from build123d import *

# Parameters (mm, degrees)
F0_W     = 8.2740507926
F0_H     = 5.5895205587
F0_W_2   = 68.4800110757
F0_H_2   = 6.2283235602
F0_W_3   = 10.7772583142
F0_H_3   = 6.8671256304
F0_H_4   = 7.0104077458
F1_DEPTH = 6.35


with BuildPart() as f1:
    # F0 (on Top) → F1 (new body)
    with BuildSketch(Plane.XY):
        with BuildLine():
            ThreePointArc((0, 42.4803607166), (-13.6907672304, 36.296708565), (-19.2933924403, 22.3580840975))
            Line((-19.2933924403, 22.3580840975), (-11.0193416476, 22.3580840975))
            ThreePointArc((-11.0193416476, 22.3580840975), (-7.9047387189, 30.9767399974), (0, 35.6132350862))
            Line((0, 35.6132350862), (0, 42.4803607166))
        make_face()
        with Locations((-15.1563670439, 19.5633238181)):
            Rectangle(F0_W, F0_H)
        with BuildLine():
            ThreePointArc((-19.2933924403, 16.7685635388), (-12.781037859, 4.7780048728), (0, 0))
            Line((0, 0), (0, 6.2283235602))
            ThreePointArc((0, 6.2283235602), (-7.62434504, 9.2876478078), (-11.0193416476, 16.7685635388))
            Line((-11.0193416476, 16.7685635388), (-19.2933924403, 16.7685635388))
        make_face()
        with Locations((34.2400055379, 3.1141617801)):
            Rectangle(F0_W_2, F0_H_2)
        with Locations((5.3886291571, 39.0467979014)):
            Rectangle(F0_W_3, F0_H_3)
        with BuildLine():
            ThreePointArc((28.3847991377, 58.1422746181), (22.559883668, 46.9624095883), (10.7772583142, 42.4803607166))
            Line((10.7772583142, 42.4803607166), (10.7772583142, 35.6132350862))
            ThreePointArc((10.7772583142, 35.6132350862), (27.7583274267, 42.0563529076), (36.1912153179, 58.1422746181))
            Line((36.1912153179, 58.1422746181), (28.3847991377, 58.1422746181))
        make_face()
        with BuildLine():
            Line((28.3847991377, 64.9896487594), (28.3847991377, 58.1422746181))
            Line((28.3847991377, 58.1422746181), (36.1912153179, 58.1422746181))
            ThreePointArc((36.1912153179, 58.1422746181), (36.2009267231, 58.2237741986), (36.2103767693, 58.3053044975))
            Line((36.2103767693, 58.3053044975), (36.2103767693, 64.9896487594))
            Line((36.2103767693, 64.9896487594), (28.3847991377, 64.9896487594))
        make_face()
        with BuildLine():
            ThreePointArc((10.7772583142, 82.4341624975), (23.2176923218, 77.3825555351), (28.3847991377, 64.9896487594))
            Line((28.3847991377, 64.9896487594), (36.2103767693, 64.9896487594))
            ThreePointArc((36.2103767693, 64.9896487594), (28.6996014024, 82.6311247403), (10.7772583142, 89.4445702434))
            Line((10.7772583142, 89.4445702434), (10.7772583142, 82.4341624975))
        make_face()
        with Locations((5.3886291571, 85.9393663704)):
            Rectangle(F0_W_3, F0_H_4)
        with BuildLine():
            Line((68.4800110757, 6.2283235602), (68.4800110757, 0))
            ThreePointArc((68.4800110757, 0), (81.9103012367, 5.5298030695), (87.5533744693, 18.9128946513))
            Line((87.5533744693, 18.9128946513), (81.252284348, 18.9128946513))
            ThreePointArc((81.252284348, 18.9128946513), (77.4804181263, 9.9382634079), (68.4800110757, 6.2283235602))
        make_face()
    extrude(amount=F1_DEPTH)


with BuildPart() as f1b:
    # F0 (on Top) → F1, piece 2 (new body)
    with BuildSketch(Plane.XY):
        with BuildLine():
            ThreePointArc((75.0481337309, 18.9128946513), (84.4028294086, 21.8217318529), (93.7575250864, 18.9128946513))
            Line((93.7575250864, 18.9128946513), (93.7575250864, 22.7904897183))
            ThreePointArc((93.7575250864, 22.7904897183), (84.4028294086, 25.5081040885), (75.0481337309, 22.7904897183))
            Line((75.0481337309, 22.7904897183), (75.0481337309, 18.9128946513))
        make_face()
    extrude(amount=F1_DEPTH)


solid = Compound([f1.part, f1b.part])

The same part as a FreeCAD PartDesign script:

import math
import FreeCAD as App
import Part
import Sketcher

V = App.Vector
Q = App.Units.Quantity

doc = App.newDocument("Part")
params = doc.addObject("Spreadsheet::Sheet", "Params")
for row, (alias, value) in enumerate([
    ("pad1_length", "0.25 in"),
    ("pad2_length", "0.25 in"),
], start=1):
    params.set(f"A{row}", alias)
    params.set(f"B{row}", "=" + value)
    params.setAlias(f"B{row}", alias)

body = doc.addObject("PartDesign::Body", "Body")

sketch1 = doc.addObject("Sketcher::SketchObject", "Sketch")
body.addObject(sketch1)
sketch1.AttachmentSupport = (doc.XY_Plane, [""])
sketch1.MapMode = "FlatFace"
sketch1.addGeometry([
    Part.ArcOfCircle(Part.Circle(V(0.846689, 22.358084, 0), V(0, 0, 1), 20.140082), math.radians(92.409426), math.radians(180)),
    Part.LineSegment(V(-19.293392, 22.358084, 0), V(-19.293392, 16.768564, 0)),
    Part.ArcOfCircle(Part.Circle(V(0, 19.483473, 0), V(0, 0, 1), 19.483473), math.radians(-171.990098), math.radians(-90)),
    Part.LineSegment(V(0, 0, 0), V(68.480011, 0, 0)),
    Part.ArcOfCircle(Part.Circle(V(68.480011, 19.074044, 0), V(0, 0, 1), 19.074044), math.radians(-90), math.radians(-0.484076)),
    Part.LineSegment(V(87.553374, 18.912895, 0), V(81.252284, 18.912895, 0)),
    Part.ArcOfCircle(Part.Circle(V(68.480011, 19.0009, 0), V(0, 0, 1), 12.772576), math.radians(-90), math.radians(-0.394781)),
    Part.LineSegment(V(68.480011, 6.228324, 0), V(0, 6.228324, 0)),
    Part.ArcOfCircle(Part.Circle(V(0, 17.258554, 0), V(0, 0, 1), 11.03023), math.radians(-177.453941), math.radians(-90)),
    Part.LineSegment(V(-11.019342, 16.768564, 0), V(-11.019342, 22.358084, 0)),
    Part.ArcOfCircle(Part.Circle(V(2.462631, 22.358084, 0), V(0, 0, 1), 13.481972), math.radians(100.524795), math.radians(180)),
    Part.LineSegment(V(0, 35.613235, 0), V(10.777258, 35.613235, 0)),
    Part.ArcOfCircle(Part.Circle(V(10.777258, 61.211904, 0), V(0, 0, 1), 25.598669), math.radians(-90), math.radians(-6.887117)),
    Part.ArcOfCircle(Part.Circle(V(10.777266, 61.211903, 0), V(0, 0, 1), 25.598661), math.radians(-6.887117), math.radians(-6.519706)),
    Part.LineSegment(V(36.210377, 58.305304, 0), V(36.210377, 64.989649, 0)),
    Part.ArcOfCircle(Part.Circle(V(11.736644, 64.989649, 0), V(0, 0, 1), 24.473733), math.radians(0), math.radians(92.246606)),
    Part.LineSegment(V(10.777258, 89.44457, 0), V(0, 89.44457, 0)),
    Part.LineSegment(V(0, 89.44457, 0), V(0, 82.434162, 0)),
    Part.LineSegment(V(0, 82.434162, 0), V(10.777258, 82.434162, 0)),
    Part.ArcOfCircle(Part.Circle(V(10.939531, 64.989649, 0), V(0, 0, 1), 17.445268), math.radians(0), math.radians(90.532961)),
    Part.LineSegment(V(28.384799, 64.989649, 0), V(28.384799, 58.142275, 0)),
    Part.ArcOfCircle(Part.Circle(V(10.777258, 60.208751, 0), V(0, 0, 1), 17.72839), math.radians(-90), math.radians(-6.693791)),
    Part.LineSegment(V(10.777258, 42.480361, 0), V(0, 42.480361, 0)),
], False)
sketch1.addConstraint([
    Sketcher.Constraint("Coincident", 0, 2, 1, 1),
    Sketcher.Constraint("Coincident", 1, 2, 2, 1),
    Sketcher.Constraint("Coincident", 2, 2, 3, 1),
    Sketcher.Constraint("Coincident", 3, 2, 4, 1),
    Sketcher.Constraint("Coincident", 4, 2, 5, 1),
    Sketcher.Constraint("Coincident", 5, 2, 6, 2),
    Sketcher.Constraint("Coincident", 6, 1, 7, 1),
    Sketcher.Constraint("Coincident", 7, 2, 8, 2),
    Sketcher.Constraint("Coincident", 8, 1, 9, 1),
    Sketcher.Constraint("Coincident", 9, 2, 10, 2),
    Sketcher.Constraint("Coincident", 10, 1, 11, 1),
    Sketcher.Constraint("Coincident", 11, 2, 12, 1),
    Sketcher.Constraint("Coincident", 12, 2, 13, 1),
    Sketcher.Constraint("Coincident", 13, 2, 14, 1),
    Sketcher.Constraint("Coincident", 14, 2, 15, 1),
    Sketcher.Constraint("Coincident", 15, 2, 16, 1),
    Sketcher.Constraint("Coincident", 16, 2, 17, 1),
    Sketcher.Constraint("Coincident", 17, 2, 18, 1),
    Sketcher.Constraint("Coincident", 18, 2, 19, 2),
    Sketcher.Constraint("Coincident", 19, 1, 20, 1),
    Sketcher.Constraint("Coincident", 20, 2, 21, 2),
    Sketcher.Constraint("Coincident", 21, 1, 22, 1),
    Sketcher.Constraint("Coincident", 22, 2, 0, 1),
    Sketcher.Constraint("Vertical", 1),
    Sketcher.Constraint("Horizontal", 3),
    Sketcher.Constraint("Horizontal", 5),
    Sketcher.Constraint("Horizontal", 7),
    Sketcher.Constraint("Vertical", 9),
    Sketcher.Constraint("Horizontal", 11),
    Sketcher.Constraint("Vertical", 14),
    Sketcher.Constraint("Horizontal", 16),
    Sketcher.Constraint("Vertical", 17),
    Sketcher.Constraint("Horizontal", 18),
    Sketcher.Constraint("Vertical", 20),
    Sketcher.Constraint("Horizontal", 22),
    Sketcher.Constraint("Coincident", 2, 2, -1, 1),
    Sketcher.Constraint("Coincident", 13, 3, 12, 3),
    Sketcher.Constraint("PointOnObject", 2, 3, -2),
    Sketcher.Constraint("PointOnObject", 8, 3, -2),
    Sketcher.Constraint("PointOnObject", 7, 2, -2),
    Sketcher.Constraint("PointOnObject", 10, 1, -2),
    Sketcher.Constraint("PointOnObject", 16, 2, -2),
    Sketcher.Constraint("PointOnObject", 22, 2, -2),
    Sketcher.Constraint("Radius", 0, Q("20.140082 mm")),
    Sketcher.Constraint("Radius", 8, Q("11.03023 mm")),
    Sketcher.Constraint("Radius", 12, Q("25.598669 mm")),
    Sketcher.Constraint("Radius", 19, Q("17.445268 mm")),
    Sketcher.Constraint("Radius", 21, Q("17.72839 mm")),
    Sketcher.Constraint("Radius", 2, Q("19.483473 mm")),
    Sketcher.Constraint("Radius", 4, Q("19.074044 mm")),
    Sketcher.Constraint("Radius", 6, Q("12.772576 mm")),
    Sketcher.Constraint("Radius", 10, Q("13.481972 mm")),
    Sketcher.Constraint("Radius", 15, Q("24.473733 mm")),
    Sketcher.Constraint("DistanceX", 3, 1, 3, 2, Q("68.480011 mm")),
    Sketcher.Constraint("DistanceX", 5, 2, 5, 1, Q("6.30109 mm")),
    Sketcher.Constraint("DistanceX", 7, 2, 7, 1, Q("68.480011 mm")),
    Sketcher.Constraint("DistanceX", 11, 1, 11, 2, Q("10.777258 mm")),
    Sketcher.Constraint("DistanceX", 16, 2, 16, 1, Q("10.777258 mm")),
    Sketcher.Constraint("DistanceX", 18, 1, 18, 2, Q("10.777258 mm")),
    Sketcher.Constraint("DistanceX", 22, 2, 22, 1, Q("10.777258 mm")),
    Sketcher.Constraint("DistanceY", 1, 2, 1, 1, Q("5.589521 mm")),
    Sketcher.Constraint("DistanceY", 9, 1, 9, 2, Q("5.589521 mm")),
    Sketcher.Constraint("DistanceY", -1, 1, 6, 3, Q("19.0009 mm")),
    Sketcher.Constraint("DistanceX", -1, 1, 19, 1, Q("28.384799 mm")),
    Sketcher.Constraint("DistanceX", 10, 3, 19, 3, Q("8.4769 mm")),
    Sketcher.Constraint("DistanceY", 13, 2, 13, 3, Q("2.906598 mm")),
    Sketcher.Constraint("DistanceY", 14, 1, 14, 2, Q("6.684344 mm")),
    Sketcher.Constraint("DistanceY", 17, 2, 17, 1, Q("7.010408 mm")),
    Sketcher.Constraint("DistanceY", 20, 2, 20, 1, Q("6.847374 mm")),
    Sketcher.Constraint("DistanceX", -1, 1, 0, 3, Q("0.846689 mm")),
    Sketcher.Constraint("DistanceX", -1, 1, 4, 3, Q("68.480011 mm")),
    Sketcher.Constraint("DistanceX", -1, 1, 12, 3, Q("10.777258 mm")),
    Sketcher.Constraint("DistanceY", -1, 1, 15, 3, Q("64.989649 mm")),
    Sketcher.Constraint("DistanceX", -1, 1, 21, 3, Q("10.777258 mm")),
    Sketcher.Constraint("DistanceY", -1, 1, 21, 3, Q("60.208751 mm")),
    Sketcher.Constraint("DistanceY", -1, 1, 14, 2, Q("64.989649 mm")),
    Sketcher.Constraint("DistanceY", 4, 2, 4, 3, Q("0.16115 mm")),
    Sketcher.Constraint("DistanceX", 15, 3, 12, 2, Q("24.454572 mm")),
])
pad1 = doc.addObject("PartDesign::Pad", "Pad")
body.addObject(pad1)
pad1.Profile = sketch1
pad1.setExpression("Length", "Params.pad1_length")
body2 = doc.addObject("PartDesign::Body", "Body001")

sketch2 = doc.addObject("Sketcher::SketchObject", "Sketch001")
body2.addObject(sketch2)
sketch2.AttachmentSupport = (doc.getObject("XY_Plane001"), [""])
sketch2.MapMode = "FlatFace"
sketch2.addGeometry([
    Part.ArcOfCircle(Part.Circle(V(84.4, 5.3, 0), V(0, 0, 1), 16.5), math.radians(55), math.radians(125)),
    Part.LineSegment(V(93.8, 18.9, 0), V(93.8, 22.8, 0)),
    Part.ArcOfCircle(Part.Circle(V(84.4, 8, 0), V(0, 0, 1), 17.5), math.radians(58), math.radians(122)),
    Part.LineSegment(V(75, 22.8, 0), V(75, 18.9, 0)),
], False)
sketch2.addConstraint([
    Sketcher.Constraint("Coincident", 0, 1, 1, 1),
    Sketcher.Constraint("Coincident", 1, 2, 2, 1),
    Sketcher.Constraint("Coincident", 2, 2, 3, 1),
    Sketcher.Constraint("Coincident", 3, 2, 0, 2),
    Sketcher.Constraint("Vertical", 1),
    Sketcher.Constraint("Vertical", 3),
    Sketcher.Constraint("Horizontal", 1, 2, 2, 2),
    Sketcher.Constraint("Horizontal", 0, 1, 3, 2),
    Sketcher.Constraint("Radius", 0, Q("16.496569 mm")),
    Sketcher.Constraint("Radius", 2, Q("17.459386 mm")),
    Sketcher.Constraint("DistanceY", 1, 1, 1, 2, Q("3.877595 mm")),
    Sketcher.Constraint("DistanceX", -1, 1, 0, 3, Q("84.402829 mm")),
    Sketcher.Constraint("DistanceY", -1, 1, 1, 2, Q("22.79049 mm")),
    Sketcher.Constraint("DistanceY", 0, 3, 0, 1, Q("13.587731 mm")),
])
pad2 = doc.addObject("PartDesign::Pad", "Pad001")
body2.addObject(pad2)
pad2.Profile = sketch2
pad2.setExpression("Length", "Params.pad2_length")

doc.recompute()
